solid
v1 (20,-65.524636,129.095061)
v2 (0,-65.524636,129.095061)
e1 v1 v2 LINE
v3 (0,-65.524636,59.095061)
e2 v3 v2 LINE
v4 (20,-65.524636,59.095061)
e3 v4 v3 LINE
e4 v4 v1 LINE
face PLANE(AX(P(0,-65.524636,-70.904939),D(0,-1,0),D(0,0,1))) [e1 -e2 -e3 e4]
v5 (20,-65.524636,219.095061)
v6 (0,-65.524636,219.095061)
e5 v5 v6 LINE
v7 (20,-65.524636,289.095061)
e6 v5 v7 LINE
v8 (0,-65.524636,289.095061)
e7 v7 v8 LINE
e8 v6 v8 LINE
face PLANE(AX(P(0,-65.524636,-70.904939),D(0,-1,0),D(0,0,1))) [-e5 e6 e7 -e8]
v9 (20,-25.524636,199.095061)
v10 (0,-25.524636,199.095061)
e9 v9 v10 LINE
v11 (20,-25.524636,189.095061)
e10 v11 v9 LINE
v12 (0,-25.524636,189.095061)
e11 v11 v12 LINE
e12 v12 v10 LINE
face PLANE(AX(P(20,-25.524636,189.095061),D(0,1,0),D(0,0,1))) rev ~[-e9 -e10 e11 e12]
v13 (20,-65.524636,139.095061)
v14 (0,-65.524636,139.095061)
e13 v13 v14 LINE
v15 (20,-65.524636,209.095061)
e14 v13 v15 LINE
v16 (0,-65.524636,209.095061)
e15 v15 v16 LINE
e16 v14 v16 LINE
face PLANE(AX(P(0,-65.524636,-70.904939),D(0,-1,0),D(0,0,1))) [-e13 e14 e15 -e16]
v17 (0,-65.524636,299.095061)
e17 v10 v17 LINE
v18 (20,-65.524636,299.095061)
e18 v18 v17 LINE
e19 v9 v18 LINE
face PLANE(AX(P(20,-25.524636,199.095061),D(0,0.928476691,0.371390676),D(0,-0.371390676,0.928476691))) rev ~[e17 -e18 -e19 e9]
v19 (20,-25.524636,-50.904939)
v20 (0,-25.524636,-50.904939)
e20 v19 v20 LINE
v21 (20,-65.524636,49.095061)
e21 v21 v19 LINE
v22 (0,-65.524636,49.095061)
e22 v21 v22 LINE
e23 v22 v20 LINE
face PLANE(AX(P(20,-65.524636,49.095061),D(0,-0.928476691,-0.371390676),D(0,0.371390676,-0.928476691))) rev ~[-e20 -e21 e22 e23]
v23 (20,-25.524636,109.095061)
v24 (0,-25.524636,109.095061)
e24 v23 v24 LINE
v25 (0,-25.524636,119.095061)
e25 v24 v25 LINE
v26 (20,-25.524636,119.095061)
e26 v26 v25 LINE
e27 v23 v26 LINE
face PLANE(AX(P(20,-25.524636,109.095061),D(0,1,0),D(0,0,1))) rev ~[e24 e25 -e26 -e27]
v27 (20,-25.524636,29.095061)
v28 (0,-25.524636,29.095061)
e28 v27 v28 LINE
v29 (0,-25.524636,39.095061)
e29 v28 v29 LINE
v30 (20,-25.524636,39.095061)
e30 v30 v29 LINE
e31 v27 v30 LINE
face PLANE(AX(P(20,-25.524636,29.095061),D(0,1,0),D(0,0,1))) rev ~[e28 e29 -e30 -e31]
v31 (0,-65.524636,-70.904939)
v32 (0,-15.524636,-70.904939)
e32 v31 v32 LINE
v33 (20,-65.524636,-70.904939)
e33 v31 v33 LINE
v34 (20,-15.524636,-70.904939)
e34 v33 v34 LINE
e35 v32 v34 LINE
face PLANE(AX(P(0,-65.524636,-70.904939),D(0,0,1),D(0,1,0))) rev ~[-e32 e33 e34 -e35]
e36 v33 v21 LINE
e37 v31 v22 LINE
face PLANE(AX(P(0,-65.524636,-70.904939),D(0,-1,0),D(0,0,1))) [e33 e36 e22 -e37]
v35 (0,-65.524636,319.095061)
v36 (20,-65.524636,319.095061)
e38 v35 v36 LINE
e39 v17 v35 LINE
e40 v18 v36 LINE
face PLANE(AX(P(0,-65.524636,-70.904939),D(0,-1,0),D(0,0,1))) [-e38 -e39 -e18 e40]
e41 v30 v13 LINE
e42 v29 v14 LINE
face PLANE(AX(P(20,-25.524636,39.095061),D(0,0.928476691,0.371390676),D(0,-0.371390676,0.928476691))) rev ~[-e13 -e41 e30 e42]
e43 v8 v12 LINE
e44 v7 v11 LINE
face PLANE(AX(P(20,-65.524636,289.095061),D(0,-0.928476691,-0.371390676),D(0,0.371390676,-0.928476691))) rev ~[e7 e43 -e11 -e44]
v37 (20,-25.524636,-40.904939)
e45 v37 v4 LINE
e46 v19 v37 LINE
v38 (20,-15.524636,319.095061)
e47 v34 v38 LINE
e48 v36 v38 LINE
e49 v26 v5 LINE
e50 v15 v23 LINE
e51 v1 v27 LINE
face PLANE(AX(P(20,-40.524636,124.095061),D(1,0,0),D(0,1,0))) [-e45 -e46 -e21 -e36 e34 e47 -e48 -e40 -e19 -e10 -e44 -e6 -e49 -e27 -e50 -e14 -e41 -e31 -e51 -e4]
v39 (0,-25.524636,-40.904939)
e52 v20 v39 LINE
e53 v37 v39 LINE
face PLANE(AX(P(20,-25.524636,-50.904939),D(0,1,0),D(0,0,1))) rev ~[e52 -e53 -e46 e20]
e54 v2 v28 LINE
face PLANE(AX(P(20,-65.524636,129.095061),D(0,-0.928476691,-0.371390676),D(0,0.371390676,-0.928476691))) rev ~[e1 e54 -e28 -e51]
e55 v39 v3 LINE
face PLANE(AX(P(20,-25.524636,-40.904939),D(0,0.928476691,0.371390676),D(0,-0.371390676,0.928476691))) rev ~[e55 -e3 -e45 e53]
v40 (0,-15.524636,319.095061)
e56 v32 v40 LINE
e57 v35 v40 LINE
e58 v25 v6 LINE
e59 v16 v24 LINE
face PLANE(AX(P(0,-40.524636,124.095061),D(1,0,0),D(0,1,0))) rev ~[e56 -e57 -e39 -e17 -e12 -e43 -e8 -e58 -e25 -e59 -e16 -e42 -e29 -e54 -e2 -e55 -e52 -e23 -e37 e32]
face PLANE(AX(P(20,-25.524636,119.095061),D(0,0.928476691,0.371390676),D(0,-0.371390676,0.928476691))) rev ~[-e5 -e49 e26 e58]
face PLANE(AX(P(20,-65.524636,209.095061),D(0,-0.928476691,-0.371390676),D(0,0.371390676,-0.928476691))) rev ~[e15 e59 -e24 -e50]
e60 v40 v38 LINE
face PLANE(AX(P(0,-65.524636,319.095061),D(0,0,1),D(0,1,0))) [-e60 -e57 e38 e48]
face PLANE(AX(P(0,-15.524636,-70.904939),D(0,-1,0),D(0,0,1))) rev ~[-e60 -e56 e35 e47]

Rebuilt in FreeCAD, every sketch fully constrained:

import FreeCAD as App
import Part
import Sketcher

doc = App.newDocument("Part")
body = doc.addObject("PartDesign::Body", "Body")

sketch1 = body.newObject("Sketcher::SketchObject", "Sketch")
sketch1.AttachmentSupport = (doc.getObject("YZ_Plane"), [""])
sketch1.MapMode = "FlatFace"
sketch1.addGeometry([
    Part.LineSegment(App.Vector(-65.524636, 319.095061, 0), App.Vector(-65.524636, -70.904939, 0)),
    Part.LineSegment(App.Vector(-65.524636, -70.904939, 0), App.Vector(-15.524636, -70.904939, 0)),
    Part.LineSegment(App.Vector(-15.524636, -70.904939, 0), App.Vector(-15.524636, 319.095061, 0)),
    Part.LineSegment(App.Vector(-15.524636, 319.095061, 0), App.Vector(-65.524636, 319.095061, 0)),
], False)
sketch1.addConstraint([
    Sketcher.Constraint("Coincident", 0, 2, 1, 1),
    Sketcher.Constraint("Coincident", 1, 2, 2, 1),
    Sketcher.Constraint("Coincident", 2, 2, 3, 1),
    Sketcher.Constraint("Coincident", 3, 2, 0, 1),
    Sketcher.Constraint("Vertical", 0),
    Sketcher.Constraint("Horizontal", 1),
    Sketcher.Constraint("Vertical", 2),
    Sketcher.Constraint("Horizontal", 3),
    Sketcher.Constraint("DistanceX", 1, 1, 1, 2, 50.0),
    Sketcher.Constraint("DistanceY", 0, 2, 0, 1, 390.0),
    Sketcher.Constraint("DistanceY", 0, 2, -1, 1, 70.904939),
    Sketcher.Constraint("DistanceX", 0, 2, -1, 1, 65.524636),
])
pad1 = body.newObject("PartDesign::Pad", "Pad")
pad1.Profile = sketch1
pad1.Length = 20

sketch2 = body.newObject("Sketcher::SketchObject", "Sketch001")
sketch2.AttachmentSupport = (doc.getObject("YZ_Plane"), [""])
sketch2.MapMode = "FlatFace"
sketch2.AttachmentOffset = App.Placement(App.Vector(0, 0, 20), App.Rotation())
sketch2.addGeometry([
    Part.LineSegment(App.Vector(-65.524636, 59.095061, 0), App.Vector(-65.524636, 49.095061, 0)),
    Part.LineSegment(App.Vector(-65.524636, 49.095061, 0), App.Vector(-25.524636, -50.904939, 0)),
    Part.LineSegment(App.Vector(-25.524636, -50.904939, 0), App.Vector(-25.524636, -40.904939, 0)),
    Part.LineSegment(App.Vector(-25.524636, -40.904939, 0), App.Vector(-65.524636, 59.095061, 0)),
    Part.LineSegment(App.Vector(-25.524636, 29.095061, 0), App.Vector(-25.524636, 39.095061, 0)),
    Part.LineSegment(App.Vector(-25.524636, 39.095061, 0), App.Vector(-65.524636, 139.095061, 0)),
    Part.LineSegment(App.Vector(-65.524636, 139.095061, 0), App.Vector(-65.524636, 129.095061, 0)),
    Part.LineSegment(App.Vector(-65.524636, 129.095061, 0), App.Vector(-25.524636, 29.095061, 0)),
    Part.LineSegment(App.Vector(-25.524636, 109.095061, 0), App.Vector(-25.524636, 119.095061, 0)),
    Part.LineSegment(App.Vector(-25.524636, 119.095061, 0), App.Vector(-65.524636, 219.095061, 0)),
    Part.LineSegment(App.Vector(-65.524636, 219.095061, 0), App.Vector(-65.524636, 209.095061, 0)),
    Part.LineSegment(App.Vector(-65.524636, 209.095061, 0), App.Vector(-25.524636, 109.095061, 0)),
    Part.LineSegment(App.Vector(-25.524636, 189.095061, 0), App.Vector(-25.524636, 199.095061, 0)),
    Part.LineSegment(App.Vector(-25.524636, 199.095061, 0), App.Vector(-65.524636, 299.095061, 0)),
    Part.LineSegment(App.Vector(-65.524636, 299.095061, 0), App.Vector(-65.524636, 289.095061, 0)),
    Part.LineSegment(App.Vector(-65.524636, 289.095061, 0), App.Vector(-25.524636, 189.095061, 0)),
], False)
sketch2.addConstraint([
    Sketcher.Constraint("Coincident", 0, 2, 1, 1),
    Sketcher.Constraint("Coincident", 1, 2, 2, 1),
    Sketcher.Constraint("Coincident", 2, 2, 3, 1),
    Sketcher.Constraint("Coincident", 3, 2, 0, 1),
    Sketcher.Constraint("Coincident", 4, 2, 5, 1),
    Sketcher.Constraint("Coincident", 5, 2, 6, 1),
    Sketcher.Constraint("Coincident", 6, 2, 7, 1),
    Sketcher.Constraint("Coincident", 7, 2, 4, 1),
    Sketcher.Constraint("Coincident", 8, 2, 9, 1),
    Sketcher.Constraint("Coincident", 9, 2, 10, 1),
    Sketcher.Constraint("Coincident", 10, 2, 11, 1),
    Sketcher.Constraint("Coincident", 11, 2, 8, 1),
    Sketcher.Constraint("Coincident", 12, 2, 13, 1),
    Sketcher.Constraint("Coincident", 13, 2, 14, 1),
    Sketcher.Constraint("Coincident", 14, 2, 15, 1),
    Sketcher.Constraint("Coincident", 15, 2, 12, 1),
    Sketcher.Constraint("Vertical", 0),
    Sketcher.Constraint("Vertical", 2),
    Sketcher.Constraint("Vertical", 4),
    Sketcher.Constraint("Vertical", 6),
    Sketcher.Constraint("Vertical", 8),
    Sketcher.Constraint("Vertical", 10),
    Sketcher.Constraint("Vertical", 12),
    Sketcher.Constraint("Vertical", 14),
    Sketcher.Constraint("Parallel", 1, 3),
    Sketcher.Constraint("Parallel", 3, 5),
    Sketcher.Constraint("Parallel", 5, 7),
    Sketcher.Constraint("Parallel", 7, 9),
    Sketcher.Constraint("Parallel", 9, 11),
    Sketcher.Constraint("Parallel", 11, 13),
    Sketcher.Constraint("Parallel", 13, 15),
    Sketcher.Constraint("Vertical", 2, 2, 4, 2),
    Sketcher.Constraint("Vertical", 3, 2, 5, 2),
    Sketcher.Constraint("Vertical", 7, 2, 8, 2),
    Sketcher.Constraint("Vertical", 6, 2, 9, 2),
    Sketcher.Constraint("Vertical", 11, 2, 12, 2),
    Sketcher.Constraint("Vertical", 10, 2, 13, 2),
    Sketcher.Constraint("Equal", 2, 4),
    Sketcher.Constraint("Equal", 6, 8),
    Sketcher.Constraint("Equal", 10, 12),
    Sketcher.Constraint("DistanceY", 0, 2, 0, 1, 10.0),
    Sketcher.Constraint("DistanceX", 0, 2, 1, 2, 40.0),
    Sketcher.Constraint("DistanceY", 1, 2, 0, 2, 100.0),
    Sketcher.Constraint("DistanceY", 4, 2, 0, 2, 10.0),
    Sketcher.Constraint("DistanceY", 8, 2, 6, 2, 10.0),
    Sketcher.Constraint("DistanceY", 12, 2, 10, 2, 10.0),
    Sketcher.Constraint("DistanceY", -1, 1, 0, 2, 49.095061),
    Sketcher.Constraint("DistanceX", 0, 2, -1, 1, 65.524636),
])
pocket1 = body.newObject("PartDesign::Pocket", "Pocket")
pocket1.Profile = sketch2
pocket1.Type = "ThroughAll"

doc.recompute()
